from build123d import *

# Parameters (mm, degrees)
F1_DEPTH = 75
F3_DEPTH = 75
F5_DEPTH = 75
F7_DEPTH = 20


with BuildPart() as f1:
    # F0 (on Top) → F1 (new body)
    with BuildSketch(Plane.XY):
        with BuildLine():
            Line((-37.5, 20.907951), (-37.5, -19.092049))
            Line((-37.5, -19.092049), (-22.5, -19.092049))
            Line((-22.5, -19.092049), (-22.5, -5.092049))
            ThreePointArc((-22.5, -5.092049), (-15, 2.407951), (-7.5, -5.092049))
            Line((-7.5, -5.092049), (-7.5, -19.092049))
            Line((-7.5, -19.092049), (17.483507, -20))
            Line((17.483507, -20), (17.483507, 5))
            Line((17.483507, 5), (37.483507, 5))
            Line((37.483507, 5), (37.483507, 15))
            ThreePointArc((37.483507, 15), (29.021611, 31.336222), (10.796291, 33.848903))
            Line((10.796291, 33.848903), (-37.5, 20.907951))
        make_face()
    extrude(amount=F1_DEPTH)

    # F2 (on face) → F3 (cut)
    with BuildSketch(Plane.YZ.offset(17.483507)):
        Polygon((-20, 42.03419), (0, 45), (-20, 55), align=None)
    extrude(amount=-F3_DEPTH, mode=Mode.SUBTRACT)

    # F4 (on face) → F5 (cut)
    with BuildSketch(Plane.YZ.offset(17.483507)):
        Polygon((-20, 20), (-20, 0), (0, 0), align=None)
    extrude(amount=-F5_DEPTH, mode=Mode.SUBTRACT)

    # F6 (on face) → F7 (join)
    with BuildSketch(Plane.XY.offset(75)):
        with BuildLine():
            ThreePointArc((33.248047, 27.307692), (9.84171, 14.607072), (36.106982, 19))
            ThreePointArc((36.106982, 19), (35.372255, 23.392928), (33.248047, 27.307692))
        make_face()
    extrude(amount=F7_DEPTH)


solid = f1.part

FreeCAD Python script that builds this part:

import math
import FreeCAD as App
import Part
import Sketcher
Q = App.Units.Quantity


def add_polygon(sketch, points):
    """Adds a closed chain of lines whose ends are joined by coincident constraints."""
    first, n = sketch.GeometryCount, len(points)
    for a, b in zip(points, points[1:] + points[:1]):
        sketch.addGeometry(Part.LineSegment(App.Vector(*a, 0), App.Vector(*b, 0)), False)
    for i in range(n):
        sketch.addConstraint(Sketcher.Constraint("Coincident", first + i, 2, first + (i + 1) % n, 1))

doc = App.newDocument("Part")
body = doc.addObject("PartDesign::Body", "Body")

# Sketch on XY plane
sketch1 = body.newObject("Sketcher::SketchObject", "Sketch")
sketch1.AttachmentSupport = (doc.getObject("XY_Plane"), [""])
sketch1.MapMode = "FlatFace"
sketch1.addGeometry(Part.LineSegment(App.Vector(-37.5, 20.907951, 0), App.Vector(-37.5, -19.092049, 0)), False)
sketch1.addGeometry(Part.LineSegment(App.Vector(-37.5, -19.092049, 0), App.Vector(-22.5, -19.092049, 0)), False)
sketch1.addGeometry(Part.LineSegment(App.Vector(-22.5, -19.092049, 0), App.Vector(-22.5, -5.092049, 0)), False)
sketch1.addGeometry(Part.ArcOfCircle(Part.Circle(App.Vector(-15, -5.092049, 0), App.Vector(0, 0, 1), 7.5), math.radians(0), math.radians(180)), False)
sketch1.addGeometry(Part.LineSegment(App.Vector(-7.5, -5.092049, 0), App.Vector(-7.5, -19.092049, 0)), False)
sketch1.addGeometry(Part.LineSegment(App.Vector(-7.5, -19.092049, 0), App.Vector(17.483507, -20, 0)), False)
sketch1.addGeometry(Part.LineSegment(App.Vector(17.483507, -20, 0), App.Vector(17.483507, 5, 0)), False)
sketch1.addGeometry(Part.LineSegment(App.Vector(17.483507, 5, 0), App.Vector(37.483507, 5, 0)), False)
sketch1.addGeometry(Part.LineSegment(App.Vector(37.483507, 5, 0), App.Vector(37.483507, 15, 0)), False)
sketch1.addGeometry(Part.ArcOfCircle(Part.Circle(App.Vector(17.483507, 15, 0), App.Vector(0, 0, 1), 20), math.radians(0.000001), math.radians(109.533672)), False)
sketch1.addGeometry(Part.LineSegment(App.Vector(10.796291, 33.848903, 0), App.Vector(-37.5, 20.907951, 0)), False)
sketch1.addConstraint(Sketcher.Constraint("Coincident", 0, 2, 1, 1))
sketch1.addConstraint(Sketcher.Constraint("Coincident", 1, 2, 2, 1))
sketch1.addConstraint(Sketcher.Constraint("Tangent", 2, 2, 3, 2))
sketch1.addConstraint(Sketcher.Constraint("Tangent", 3, 1, 4, 1))
sketch1.addConstraint(Sketcher.Constraint("Coincident", 4, 2, 5, 1))
sketch1.addConstraint(Sketcher.Constraint("Coincident", 5, 2, 6, 1))
sketch1.addConstraint(Sketcher.Constraint("Coincident", 6, 2, 7, 1))
sketch1.addConstraint(Sketcher.Constraint("Coincident", 7, 2, 8, 1))
sketch1.addConstraint(Sketcher.Constraint("Tangent", 8, 2, 9, 1))
sketch1.addConstraint(Sketcher.Constraint("Coincident", 9, 2, 10, 1))
sketch1.addConstraint(Sketcher.Constraint("Coincident", 10, 2, 0, 1))
sketch1.addConstraint(Sketcher.Constraint("Vertical", 0))
sketch1.addConstraint(Sketcher.Constraint("Horizontal", 1))
sketch1.addConstraint(Sketcher.Constraint("Vertical", 2))
sketch1.addConstraint(Sketcher.Constraint("Vertical", 4))
sketch1.addConstraint(Sketcher.Constraint("Vertical", 6))
sketch1.addConstraint(Sketcher.Constraint("Horizontal", 7))
sketch1.addConstraint(Sketcher.Constraint("Vertical", 8))
sketch1.addConstraint(Sketcher.Constraint("Horizontal", 1, 2, 4, 2))
sketch1.addConstraint(Sketcher.Constraint("Vertical", 9, 3, 5, 2))
sketch1.addConstraint(Sketcher.Constraint("Radius", 9, 20.0))
sketch1.addConstraint(Sketcher.Constraint("Radius", 3, 7.5))
sketch1.addConstraint(Sketcher.Constraint("DistanceX", 1, 1, 1, 2, 15.0))
sketch1.addConstraint(Sketcher.Constraint("DistanceY", 0, 2, 0, 1, 40.0))
sketch1.addConstraint(Sketcher.Constraint("DistanceY", 2, 1, 2, 2, 14.0))
sketch1.addConstraint(Sketcher.Constraint("DistanceY", 6, 1, 6, 2, 25.0))
sketch1.addConstraint(Sketcher.Constraint("DistanceY", 8, 1, 8, 2, 10.0))
sketch1.addConstraint(Sketcher.Constraint("Angle", 10, Q("-165 deg")))
sketch1.addConstraint(Sketcher.Constraint("Distance", 5, 25.0))
sketch1.addConstraint(Sketcher.Constraint("Distance", 10, 50.0))
sketch1.addConstraint(Sketcher.Constraint("DistanceX", 3, 3, -1, 1, 15.0))
sketch1.addConstraint(Sketcher.Constraint("DistanceY", -1, 1, 9, 3, 15.0))
pad1 = body.newObject("PartDesign::Pad", "Pad")
pad1.Profile = sketch1
pad1.Length = 75

# Sketch on YZ plane
sketch2 = body.newObject("Sketcher::SketchObject", "Sketch001")
sketch2.AttachmentSupport = (doc.getObject("YZ_Plane"), [""])
sketch2.MapMode = "FlatFace"
sketch2.AttachmentOffset = App.Placement(App.Vector(0, 0, 17.483507), App.Rotation())
add_polygon(sketch2, [(-20, 42.03419), (0, 45), (-20, 55)])  # lines 0-2
sketch2.addConstraint(Sketcher.Constraint("Vertical", 2))
sketch2.addConstraint(Sketcher.Constraint("PointOnObject", 0, 2, -2))
sketch2.addConstraint(Sketcher.Constraint("DistanceY", -1, 1, 0, 2, 45.0))
sketch2.addConstraint(Sketcher.Constraint("DistanceX", 1, 2, -1, 1, 20.0))
sketch2.addConstraint(Sketcher.Constraint("DistanceY", -1, 1, 1, 2, 55.0))
sketch2.addConstraint(Sketcher.Constraint("DistanceY", 2, 2, 2, 1, 12.96581))
pocket1 = body.newObject("PartDesign::Pocket", "Pocket")
pocket1.Profile = sketch2
pocket1.Length = 75

# Sketch on YZ plane
sketch3 = body.newObject("Sketcher::SketchObject", "Sketch002")
sketch3.AttachmentSupport = (doc.getObject("YZ_Plane"), [""])
sketch3.MapMode = "FlatFace"
sketch3.AttachmentOffset = App.Placement(App.Vector(0, 0, 17.483507), App.Rotation())
add_polygon(sketch3, [(-20, 20), (-20, 0), (0, 0)])  # lines 0-2
sketch3.addConstraint(Sketcher.Constraint("Vertical", 0))
sketch3.addConstraint(Sketcher.Constraint("Horizontal", 1))
sketch3.addConstraint(Sketcher.Constraint("Coincident", 1, 2, -1, 1))
sketch3.addConstraint(Sketcher.Constraint("Equal", 1, 0))
sketch3.addConstraint(Sketcher.Constraint("DistanceX", 1, 1, 1, 2, 20.0))
pocket2 = body.newObject("PartDesign::Pocket", "Pocket001")
pocket2.Profile = sketch3
pocket2.Length = 75

# Sketch on XY plane
sketch4 = body.newObject("Sketcher::SketchObject", "Sketch003")
sketch4.AttachmentSupport = (doc.getObject("XY_Plane"), [""])
sketch4.MapMode = "FlatFace"
sketch4.AttachmentOffset = App.Placement(App.Vector(0, 0, 75), App.Rotation())
sketch4.addGeometry(Part.ArcOfCircle(Part.Circle(App.Vector(22.606982, 19.000001, 0), App.Vector(0, 0, 1), 13.5), math.radians(37.979868), math.radians(359.999997)), False)
sketch4.addGeometry(Part.ArcOfCircle(Part.Circle(App.Vector(22.606986, 19.000002, 0), App.Vector(0, 0, 1), 13.499996), math.radians(-0.000008), math.radians(37.979873)), False)
sketch4.addConstraint(Sketcher.Constraint("Tangent", 0, 1, 1, 2))
sketch4.addConstraint(Sketcher.Constraint("Coincident", 1, 1, 0, 2))
sketch4.addConstraint(Sketcher.Constraint("Horizontal", 0, 3, 1, 1))
sketch4.addConstraint(Sketcher.Constraint("Radius", 0, 13.5))
sketch4.addConstraint(Sketcher.Constraint("DistanceY", -1, 1, 0, 3, 19.000001))
sketch4.addConstraint(Sketcher.Constraint("DistanceY", -1, 1, 0, 1, 27.307692))
sketch4.addConstraint(Sketcher.Constraint("DistanceX", -1, 1, 1, 1, 36.106982))
pad2 = body.newObject("PartDesign::Pad", "Pad001")
pad2.Profile = sketch4
pad2.Length = 20

doc.recompute()
